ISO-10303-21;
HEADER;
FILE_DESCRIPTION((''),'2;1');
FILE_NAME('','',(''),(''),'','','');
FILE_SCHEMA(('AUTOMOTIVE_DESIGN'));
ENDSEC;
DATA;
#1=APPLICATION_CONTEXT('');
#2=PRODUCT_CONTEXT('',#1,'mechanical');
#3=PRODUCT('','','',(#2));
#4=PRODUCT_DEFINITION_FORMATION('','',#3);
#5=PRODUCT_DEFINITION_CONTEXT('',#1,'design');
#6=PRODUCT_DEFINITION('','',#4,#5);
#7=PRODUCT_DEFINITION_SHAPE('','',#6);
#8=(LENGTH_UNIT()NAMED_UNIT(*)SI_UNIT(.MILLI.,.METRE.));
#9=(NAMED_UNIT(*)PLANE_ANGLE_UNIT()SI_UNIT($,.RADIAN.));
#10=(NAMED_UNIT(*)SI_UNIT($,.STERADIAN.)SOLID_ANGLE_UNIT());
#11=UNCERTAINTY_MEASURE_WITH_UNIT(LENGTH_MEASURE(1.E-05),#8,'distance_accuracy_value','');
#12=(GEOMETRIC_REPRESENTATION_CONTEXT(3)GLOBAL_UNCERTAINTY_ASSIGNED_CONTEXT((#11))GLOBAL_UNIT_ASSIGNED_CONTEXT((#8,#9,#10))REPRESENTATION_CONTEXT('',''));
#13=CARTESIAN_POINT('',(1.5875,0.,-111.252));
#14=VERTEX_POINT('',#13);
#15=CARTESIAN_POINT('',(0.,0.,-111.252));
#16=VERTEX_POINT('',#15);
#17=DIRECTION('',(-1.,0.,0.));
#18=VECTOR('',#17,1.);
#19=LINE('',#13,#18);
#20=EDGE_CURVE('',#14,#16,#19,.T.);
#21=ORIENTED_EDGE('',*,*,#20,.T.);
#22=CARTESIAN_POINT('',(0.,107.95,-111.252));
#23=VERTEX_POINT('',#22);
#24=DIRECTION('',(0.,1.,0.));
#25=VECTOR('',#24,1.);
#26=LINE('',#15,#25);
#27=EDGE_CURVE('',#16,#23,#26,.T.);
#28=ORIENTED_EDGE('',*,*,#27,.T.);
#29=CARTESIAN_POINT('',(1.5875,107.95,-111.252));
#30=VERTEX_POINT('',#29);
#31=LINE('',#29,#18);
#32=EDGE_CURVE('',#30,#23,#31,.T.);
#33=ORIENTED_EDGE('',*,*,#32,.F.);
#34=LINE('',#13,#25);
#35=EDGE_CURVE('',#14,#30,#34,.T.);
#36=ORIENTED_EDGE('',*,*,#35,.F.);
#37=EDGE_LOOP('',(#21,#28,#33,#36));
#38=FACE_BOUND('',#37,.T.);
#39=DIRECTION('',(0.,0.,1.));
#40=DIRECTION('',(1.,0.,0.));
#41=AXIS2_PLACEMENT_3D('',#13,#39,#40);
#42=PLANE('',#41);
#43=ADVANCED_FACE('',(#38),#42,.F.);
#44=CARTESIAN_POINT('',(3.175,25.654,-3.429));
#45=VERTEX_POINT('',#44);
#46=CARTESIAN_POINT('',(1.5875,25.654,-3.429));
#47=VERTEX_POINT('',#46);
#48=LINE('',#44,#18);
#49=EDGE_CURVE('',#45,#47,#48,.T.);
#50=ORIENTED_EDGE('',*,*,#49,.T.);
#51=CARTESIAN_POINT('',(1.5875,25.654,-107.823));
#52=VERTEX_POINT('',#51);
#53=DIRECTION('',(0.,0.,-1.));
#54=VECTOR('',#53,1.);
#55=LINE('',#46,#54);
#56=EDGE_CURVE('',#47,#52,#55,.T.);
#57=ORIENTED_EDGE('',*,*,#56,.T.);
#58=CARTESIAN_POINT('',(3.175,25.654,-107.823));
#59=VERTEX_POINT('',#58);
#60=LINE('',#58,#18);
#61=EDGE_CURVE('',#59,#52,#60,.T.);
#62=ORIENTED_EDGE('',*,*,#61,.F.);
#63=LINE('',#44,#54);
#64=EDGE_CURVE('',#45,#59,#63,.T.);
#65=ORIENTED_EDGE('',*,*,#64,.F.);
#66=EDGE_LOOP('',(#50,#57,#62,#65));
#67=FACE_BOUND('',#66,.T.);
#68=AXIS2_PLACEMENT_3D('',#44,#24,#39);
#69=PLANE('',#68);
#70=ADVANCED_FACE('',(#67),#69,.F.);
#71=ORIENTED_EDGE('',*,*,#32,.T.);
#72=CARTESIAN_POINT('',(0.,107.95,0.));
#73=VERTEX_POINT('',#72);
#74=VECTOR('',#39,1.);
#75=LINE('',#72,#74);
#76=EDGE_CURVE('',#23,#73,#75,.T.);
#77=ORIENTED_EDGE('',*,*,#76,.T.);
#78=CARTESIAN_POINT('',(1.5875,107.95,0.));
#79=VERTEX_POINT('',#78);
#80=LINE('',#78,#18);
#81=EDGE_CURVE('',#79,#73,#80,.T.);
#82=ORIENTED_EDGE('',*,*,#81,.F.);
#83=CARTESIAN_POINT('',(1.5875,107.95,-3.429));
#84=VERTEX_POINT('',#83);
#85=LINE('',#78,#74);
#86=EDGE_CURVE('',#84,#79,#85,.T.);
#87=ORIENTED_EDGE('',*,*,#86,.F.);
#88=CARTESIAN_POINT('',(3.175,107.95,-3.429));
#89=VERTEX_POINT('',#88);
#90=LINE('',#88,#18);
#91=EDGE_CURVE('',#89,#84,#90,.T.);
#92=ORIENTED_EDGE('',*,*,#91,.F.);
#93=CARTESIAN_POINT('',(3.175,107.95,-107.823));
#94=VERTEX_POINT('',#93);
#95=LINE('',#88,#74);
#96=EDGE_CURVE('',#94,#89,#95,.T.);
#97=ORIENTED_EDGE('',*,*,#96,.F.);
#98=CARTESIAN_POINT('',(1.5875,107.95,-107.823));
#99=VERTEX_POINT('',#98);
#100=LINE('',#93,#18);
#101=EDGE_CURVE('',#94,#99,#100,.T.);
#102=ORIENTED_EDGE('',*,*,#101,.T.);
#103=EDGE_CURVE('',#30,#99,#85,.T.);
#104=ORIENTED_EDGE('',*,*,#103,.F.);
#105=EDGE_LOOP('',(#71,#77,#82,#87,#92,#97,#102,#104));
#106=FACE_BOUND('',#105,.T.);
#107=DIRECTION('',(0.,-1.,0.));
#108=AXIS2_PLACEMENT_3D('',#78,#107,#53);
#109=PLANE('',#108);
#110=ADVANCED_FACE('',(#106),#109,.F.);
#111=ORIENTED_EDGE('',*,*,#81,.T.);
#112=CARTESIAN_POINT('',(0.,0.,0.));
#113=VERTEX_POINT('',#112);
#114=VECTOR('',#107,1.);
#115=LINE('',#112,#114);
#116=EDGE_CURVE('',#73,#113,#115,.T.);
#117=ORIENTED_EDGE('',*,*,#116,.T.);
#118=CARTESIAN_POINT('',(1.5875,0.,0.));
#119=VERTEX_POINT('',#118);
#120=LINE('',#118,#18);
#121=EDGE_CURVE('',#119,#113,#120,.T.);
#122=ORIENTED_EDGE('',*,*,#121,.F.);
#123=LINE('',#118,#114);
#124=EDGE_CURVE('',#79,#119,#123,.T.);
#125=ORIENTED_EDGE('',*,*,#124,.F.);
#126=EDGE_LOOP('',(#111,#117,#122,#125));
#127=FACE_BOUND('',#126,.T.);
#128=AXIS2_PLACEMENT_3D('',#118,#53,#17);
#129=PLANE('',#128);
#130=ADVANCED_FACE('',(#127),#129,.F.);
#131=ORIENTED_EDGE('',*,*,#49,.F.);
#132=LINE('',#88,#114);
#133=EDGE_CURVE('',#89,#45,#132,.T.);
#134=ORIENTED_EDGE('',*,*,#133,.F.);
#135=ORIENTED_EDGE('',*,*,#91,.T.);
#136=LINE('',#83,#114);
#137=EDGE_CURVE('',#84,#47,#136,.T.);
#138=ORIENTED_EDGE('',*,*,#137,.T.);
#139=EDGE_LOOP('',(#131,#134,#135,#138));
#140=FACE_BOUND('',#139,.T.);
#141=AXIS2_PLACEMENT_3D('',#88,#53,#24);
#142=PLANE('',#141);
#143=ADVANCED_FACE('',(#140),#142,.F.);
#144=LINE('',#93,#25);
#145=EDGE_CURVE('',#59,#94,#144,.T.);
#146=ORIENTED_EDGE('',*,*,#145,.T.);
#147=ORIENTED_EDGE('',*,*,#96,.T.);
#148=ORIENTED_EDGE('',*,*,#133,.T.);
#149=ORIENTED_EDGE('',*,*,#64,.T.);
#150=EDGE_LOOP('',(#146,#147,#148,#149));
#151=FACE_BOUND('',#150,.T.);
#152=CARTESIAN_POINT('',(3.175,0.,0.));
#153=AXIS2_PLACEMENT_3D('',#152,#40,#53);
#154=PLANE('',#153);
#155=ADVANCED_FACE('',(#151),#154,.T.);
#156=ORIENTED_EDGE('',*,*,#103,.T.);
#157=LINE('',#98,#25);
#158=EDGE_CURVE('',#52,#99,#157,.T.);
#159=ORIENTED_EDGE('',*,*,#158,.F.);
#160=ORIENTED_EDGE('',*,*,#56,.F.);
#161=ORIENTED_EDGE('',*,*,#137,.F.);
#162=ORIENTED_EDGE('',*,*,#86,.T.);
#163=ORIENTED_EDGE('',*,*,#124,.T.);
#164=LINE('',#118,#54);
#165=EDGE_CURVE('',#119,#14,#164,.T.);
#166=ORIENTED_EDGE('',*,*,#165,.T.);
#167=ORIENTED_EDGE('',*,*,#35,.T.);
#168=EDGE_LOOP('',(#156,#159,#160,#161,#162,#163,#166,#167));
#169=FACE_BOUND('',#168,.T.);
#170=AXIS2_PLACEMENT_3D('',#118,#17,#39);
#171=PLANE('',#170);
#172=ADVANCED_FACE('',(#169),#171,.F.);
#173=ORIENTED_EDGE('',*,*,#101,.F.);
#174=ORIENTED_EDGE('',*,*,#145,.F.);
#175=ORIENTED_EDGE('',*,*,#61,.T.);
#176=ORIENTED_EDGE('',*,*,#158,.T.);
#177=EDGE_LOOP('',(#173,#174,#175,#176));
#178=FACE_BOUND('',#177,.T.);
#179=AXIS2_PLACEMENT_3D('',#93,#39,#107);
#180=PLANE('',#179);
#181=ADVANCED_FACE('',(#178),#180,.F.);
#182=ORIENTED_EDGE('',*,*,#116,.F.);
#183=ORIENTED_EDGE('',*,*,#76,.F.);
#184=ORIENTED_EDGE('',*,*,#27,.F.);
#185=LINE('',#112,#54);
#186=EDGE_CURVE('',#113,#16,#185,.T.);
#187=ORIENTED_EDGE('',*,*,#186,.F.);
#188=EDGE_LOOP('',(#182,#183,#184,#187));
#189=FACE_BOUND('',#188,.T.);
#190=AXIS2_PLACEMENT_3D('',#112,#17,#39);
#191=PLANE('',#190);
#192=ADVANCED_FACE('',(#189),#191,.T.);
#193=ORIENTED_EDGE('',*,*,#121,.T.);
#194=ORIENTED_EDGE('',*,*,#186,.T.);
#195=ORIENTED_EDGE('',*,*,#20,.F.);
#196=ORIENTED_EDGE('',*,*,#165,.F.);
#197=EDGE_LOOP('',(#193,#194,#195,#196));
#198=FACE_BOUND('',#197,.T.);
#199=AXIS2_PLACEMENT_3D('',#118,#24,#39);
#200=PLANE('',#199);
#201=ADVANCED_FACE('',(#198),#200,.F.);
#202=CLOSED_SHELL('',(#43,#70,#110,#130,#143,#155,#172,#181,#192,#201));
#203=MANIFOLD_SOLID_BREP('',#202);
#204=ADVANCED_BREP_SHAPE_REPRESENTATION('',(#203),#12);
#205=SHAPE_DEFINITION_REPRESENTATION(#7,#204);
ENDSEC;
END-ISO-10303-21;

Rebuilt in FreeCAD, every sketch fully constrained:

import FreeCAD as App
import Part
import Sketcher
from FreeCAD import Vector
Q = App.Units.Quantity


def add_polygon(sketch, points):
    """Adds a closed chain of lines whose ends are joined by coincident constraints."""
    first, n = sketch.GeometryCount, len(points)
    for a, b in zip(points, points[1:] + points[:1]):
        sketch.addGeometry(Part.LineSegment(App.Vector(*a, 0), App.Vector(*b, 0)), False)
    for i in range(n):
        sketch.addConstraint(Sketcher.Constraint("Coincident", first + i, 2, first + (i + 1) % n, 1))

doc = App.newDocument("Part")
body = doc.addObject("PartDesign::Body", "Body")

sketch1 = body.newObject("Sketcher::SketchObject", "Sketch")
sketch1.AttachmentSupport = (doc.getObject("YZ_Plane"), [""])
sketch1.MapMode = "FlatFace"
add_polygon(sketch1, [(108, 0), (0, 0), (0, -111), (108, -111)])
sketch1.addConstraint([
    Sketcher.Constraint("Horizontal", 0),
    Sketcher.Constraint("Vertical", 1),
    Sketcher.Constraint("Horizontal", 2),
    Sketcher.Constraint("Vertical", 3),
    Sketcher.Constraint("Coincident", 0, 2, -1, 1),
    Sketcher.Constraint("DistanceX", 0, 2, 0, 1, Q("4.25 in")),
    Sketcher.Constraint("DistanceY", 1, 2, 1, 1, Q("4.38 in")),
])
pad1 = body.newObject("PartDesign::Pad", "Pad")
pad1.Profile = sketch1
pad1.Length = Q("0.0625 in")

sketch2 = body.newObject("Sketcher::SketchObject", "Sketch001")
sketch2.AttachmentSupport = (doc.getObject("YZ_Plane"), [""])
sketch2.MapMode = "FlatFace"
sketch2.AttachmentOffset = App.Placement(Vector(0, 0, 0.0625 * 25.4), App.Rotation())
add_polygon(sketch2, [(108, -3), (26, -3), (26, -108), (108, -108)])
sketch2.addConstraint([
    Sketcher.Constraint("Horizontal", 0),
    Sketcher.Constraint("Vertical", 1),
    Sketcher.Constraint("Horizontal", 2),
    Sketcher.Constraint("Vertical", 3),
    Sketcher.Constraint("DistanceX", 0, 2, 0, 1, Q("3.24 in")),
    Sketcher.Constraint("DistanceY", 1, 2, 1, 1, Q("4.11 in")),
    Sketcher.Constraint("DistanceX", -1, 1, 0, 2, Q("1.01 in")),
    Sketcher.Constraint("DistanceY", 0, 2, -1, 1, Q("0.135 in")),
])
pad2 = body.newObject("PartDesign::Pad", "Pad001")
pad2.Profile = sketch2
pad2.Length = Q("0.0625 in")

doc.recompute()
